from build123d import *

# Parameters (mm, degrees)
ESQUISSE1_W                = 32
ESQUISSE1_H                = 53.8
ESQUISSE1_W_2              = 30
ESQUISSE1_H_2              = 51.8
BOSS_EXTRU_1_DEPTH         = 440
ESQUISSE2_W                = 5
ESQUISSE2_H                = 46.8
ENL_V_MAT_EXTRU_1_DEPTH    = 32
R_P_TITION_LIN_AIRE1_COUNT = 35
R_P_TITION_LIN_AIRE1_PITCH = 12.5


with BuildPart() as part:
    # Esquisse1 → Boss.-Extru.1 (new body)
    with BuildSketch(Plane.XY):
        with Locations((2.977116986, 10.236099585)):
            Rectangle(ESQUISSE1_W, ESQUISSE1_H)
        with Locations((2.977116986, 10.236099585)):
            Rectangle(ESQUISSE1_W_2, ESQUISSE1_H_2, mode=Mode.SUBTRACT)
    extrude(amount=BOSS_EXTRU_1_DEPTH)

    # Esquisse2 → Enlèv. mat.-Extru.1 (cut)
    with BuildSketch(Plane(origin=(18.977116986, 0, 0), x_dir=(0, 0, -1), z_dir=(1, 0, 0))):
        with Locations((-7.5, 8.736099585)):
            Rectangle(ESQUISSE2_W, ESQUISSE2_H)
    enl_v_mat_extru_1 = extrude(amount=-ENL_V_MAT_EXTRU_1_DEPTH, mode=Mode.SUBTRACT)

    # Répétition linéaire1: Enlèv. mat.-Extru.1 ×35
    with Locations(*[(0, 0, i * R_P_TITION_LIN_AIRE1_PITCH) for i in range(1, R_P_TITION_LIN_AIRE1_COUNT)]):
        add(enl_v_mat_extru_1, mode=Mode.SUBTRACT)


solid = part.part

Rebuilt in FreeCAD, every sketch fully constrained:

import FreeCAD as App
import Part
import Sketcher

V = App.Vector
Q = App.Units.Quantity


def add_polygon(sketch, points):
    """Adds a closed chain of lines whose ends are joined by coincident constraints."""
    first, n = sketch.GeometryCount, len(points)
    for a, b in zip(points, points[1:] + points[:1]):
        sketch.addGeometry(Part.LineSegment(App.Vector(*a, 0), App.Vector(*b, 0)), False)
    for i in range(n):
        sketch.addConstraint(Sketcher.Constraint("Coincident", first + i, 2, first + (i + 1) % n, 1))

doc = App.newDocument("Part")
body = doc.addObject("PartDesign::Body", "Body")

# Sketch on XY plane
sketch1 = body.newObject("Sketcher::SketchObject", "Sketch")
sketch1.AttachmentSupport = (doc.getObject("XY_Plane"), [""])
sketch1.MapMode = "FlatFace"
add_polygon(sketch1, [(-13, 37), (-13, -17), (19, -17), (19, 37)])  # lines 0-3
add_polygon(sketch1, [(18, -16), (-12, -16), (-12, 36), (18, 36)])  # lines 4-7
sketch1.addConstraint([
    Sketcher.Constraint("Vertical", 0),
    Sketcher.Constraint("Horizontal", 1),
    Sketcher.Constraint("Vertical", 2),
    Sketcher.Constraint("Horizontal", 3),
    Sketcher.Constraint("Horizontal", 4),
    Sketcher.Constraint("Vertical", 5),
    Sketcher.Constraint("Horizontal", 6),
    Sketcher.Constraint("Vertical", 7),
    Sketcher.Constraint("DistanceX", 1, 1, 1, 2, Q("32 mm")),
    Sketcher.Constraint("DistanceX", 4, 2, 4, 1, Q("30 mm")),
    Sketcher.Constraint("DistanceY", 0, 2, 0, 1, Q("53.8 mm")),
    Sketcher.Constraint("DistanceY", 5, 1, 5, 2, Q("51.8 mm")),
    Sketcher.Constraint("DistanceX", 0, 2, 4, 2, Q("1 mm")),
    Sketcher.Constraint("DistanceY", 0, 2, 4, 2, Q("1 mm")),
    Sketcher.Constraint("DistanceY", 0, 2, -1, 1, Q("16.6639 mm")),
    Sketcher.Constraint("DistanceX", 0, 2, -1, 1, Q("13.022883 mm")),
])
pad1 = body.newObject("PartDesign::Pad", "Pad")
pad1.Profile = sketch1
pad1.Length = 440

# Sketch on YZ plane
sketch2 = body.newObject("Sketcher::SketchObject", "Sketch001")
sketch2.AttachmentSupport = (doc.getObject("YZ_Plane"), [""])
sketch2.MapMode = "FlatFace"
sketch2.AttachmentOffset = App.Placement(V(0, 0, 18.977117), App.Rotation())
add_polygon(sketch2, [(32, 10), (-15, 10), (-15, 5), (32, 5)])  # lines 0-3
sketch2.addConstraint([
    Sketcher.Constraint("Horizontal", 0),
    Sketcher.Constraint("Vertical", 1),
    Sketcher.Constraint("Horizontal", 2),
    Sketcher.Constraint("Vertical", 3),
    Sketcher.Constraint("DistanceY", 1, 2, 1, 1, Q("5 mm")),
    Sketcher.Constraint("DistanceX", 0, 2, 0, 1, Q("46.8 mm")),
    Sketcher.Constraint("DistanceY", -1, 1, 0, 2, Q("10 mm")),
    Sketcher.Constraint("DistanceX", 0, 2, -1, 1, Q("14.6639 mm")),
])
pocket1 = body.newObject("PartDesign::Pocket", "Pocket")
pocket1.Profile = sketch2
pocket1.Length = 32
doc.recompute()

linearpattern = body.newObject("PartDesign::LinearPattern", "LinearPattern")
linearpattern.Originals = [pocket1]
linearpattern.Direction = (doc.getObject("Z_Axis"), [""])
linearpattern.Mode = "offset"
linearpattern.Offset = 12.5
linearpattern.Occurrences = 35
body.Tip = linearpattern

doc.recompute()
